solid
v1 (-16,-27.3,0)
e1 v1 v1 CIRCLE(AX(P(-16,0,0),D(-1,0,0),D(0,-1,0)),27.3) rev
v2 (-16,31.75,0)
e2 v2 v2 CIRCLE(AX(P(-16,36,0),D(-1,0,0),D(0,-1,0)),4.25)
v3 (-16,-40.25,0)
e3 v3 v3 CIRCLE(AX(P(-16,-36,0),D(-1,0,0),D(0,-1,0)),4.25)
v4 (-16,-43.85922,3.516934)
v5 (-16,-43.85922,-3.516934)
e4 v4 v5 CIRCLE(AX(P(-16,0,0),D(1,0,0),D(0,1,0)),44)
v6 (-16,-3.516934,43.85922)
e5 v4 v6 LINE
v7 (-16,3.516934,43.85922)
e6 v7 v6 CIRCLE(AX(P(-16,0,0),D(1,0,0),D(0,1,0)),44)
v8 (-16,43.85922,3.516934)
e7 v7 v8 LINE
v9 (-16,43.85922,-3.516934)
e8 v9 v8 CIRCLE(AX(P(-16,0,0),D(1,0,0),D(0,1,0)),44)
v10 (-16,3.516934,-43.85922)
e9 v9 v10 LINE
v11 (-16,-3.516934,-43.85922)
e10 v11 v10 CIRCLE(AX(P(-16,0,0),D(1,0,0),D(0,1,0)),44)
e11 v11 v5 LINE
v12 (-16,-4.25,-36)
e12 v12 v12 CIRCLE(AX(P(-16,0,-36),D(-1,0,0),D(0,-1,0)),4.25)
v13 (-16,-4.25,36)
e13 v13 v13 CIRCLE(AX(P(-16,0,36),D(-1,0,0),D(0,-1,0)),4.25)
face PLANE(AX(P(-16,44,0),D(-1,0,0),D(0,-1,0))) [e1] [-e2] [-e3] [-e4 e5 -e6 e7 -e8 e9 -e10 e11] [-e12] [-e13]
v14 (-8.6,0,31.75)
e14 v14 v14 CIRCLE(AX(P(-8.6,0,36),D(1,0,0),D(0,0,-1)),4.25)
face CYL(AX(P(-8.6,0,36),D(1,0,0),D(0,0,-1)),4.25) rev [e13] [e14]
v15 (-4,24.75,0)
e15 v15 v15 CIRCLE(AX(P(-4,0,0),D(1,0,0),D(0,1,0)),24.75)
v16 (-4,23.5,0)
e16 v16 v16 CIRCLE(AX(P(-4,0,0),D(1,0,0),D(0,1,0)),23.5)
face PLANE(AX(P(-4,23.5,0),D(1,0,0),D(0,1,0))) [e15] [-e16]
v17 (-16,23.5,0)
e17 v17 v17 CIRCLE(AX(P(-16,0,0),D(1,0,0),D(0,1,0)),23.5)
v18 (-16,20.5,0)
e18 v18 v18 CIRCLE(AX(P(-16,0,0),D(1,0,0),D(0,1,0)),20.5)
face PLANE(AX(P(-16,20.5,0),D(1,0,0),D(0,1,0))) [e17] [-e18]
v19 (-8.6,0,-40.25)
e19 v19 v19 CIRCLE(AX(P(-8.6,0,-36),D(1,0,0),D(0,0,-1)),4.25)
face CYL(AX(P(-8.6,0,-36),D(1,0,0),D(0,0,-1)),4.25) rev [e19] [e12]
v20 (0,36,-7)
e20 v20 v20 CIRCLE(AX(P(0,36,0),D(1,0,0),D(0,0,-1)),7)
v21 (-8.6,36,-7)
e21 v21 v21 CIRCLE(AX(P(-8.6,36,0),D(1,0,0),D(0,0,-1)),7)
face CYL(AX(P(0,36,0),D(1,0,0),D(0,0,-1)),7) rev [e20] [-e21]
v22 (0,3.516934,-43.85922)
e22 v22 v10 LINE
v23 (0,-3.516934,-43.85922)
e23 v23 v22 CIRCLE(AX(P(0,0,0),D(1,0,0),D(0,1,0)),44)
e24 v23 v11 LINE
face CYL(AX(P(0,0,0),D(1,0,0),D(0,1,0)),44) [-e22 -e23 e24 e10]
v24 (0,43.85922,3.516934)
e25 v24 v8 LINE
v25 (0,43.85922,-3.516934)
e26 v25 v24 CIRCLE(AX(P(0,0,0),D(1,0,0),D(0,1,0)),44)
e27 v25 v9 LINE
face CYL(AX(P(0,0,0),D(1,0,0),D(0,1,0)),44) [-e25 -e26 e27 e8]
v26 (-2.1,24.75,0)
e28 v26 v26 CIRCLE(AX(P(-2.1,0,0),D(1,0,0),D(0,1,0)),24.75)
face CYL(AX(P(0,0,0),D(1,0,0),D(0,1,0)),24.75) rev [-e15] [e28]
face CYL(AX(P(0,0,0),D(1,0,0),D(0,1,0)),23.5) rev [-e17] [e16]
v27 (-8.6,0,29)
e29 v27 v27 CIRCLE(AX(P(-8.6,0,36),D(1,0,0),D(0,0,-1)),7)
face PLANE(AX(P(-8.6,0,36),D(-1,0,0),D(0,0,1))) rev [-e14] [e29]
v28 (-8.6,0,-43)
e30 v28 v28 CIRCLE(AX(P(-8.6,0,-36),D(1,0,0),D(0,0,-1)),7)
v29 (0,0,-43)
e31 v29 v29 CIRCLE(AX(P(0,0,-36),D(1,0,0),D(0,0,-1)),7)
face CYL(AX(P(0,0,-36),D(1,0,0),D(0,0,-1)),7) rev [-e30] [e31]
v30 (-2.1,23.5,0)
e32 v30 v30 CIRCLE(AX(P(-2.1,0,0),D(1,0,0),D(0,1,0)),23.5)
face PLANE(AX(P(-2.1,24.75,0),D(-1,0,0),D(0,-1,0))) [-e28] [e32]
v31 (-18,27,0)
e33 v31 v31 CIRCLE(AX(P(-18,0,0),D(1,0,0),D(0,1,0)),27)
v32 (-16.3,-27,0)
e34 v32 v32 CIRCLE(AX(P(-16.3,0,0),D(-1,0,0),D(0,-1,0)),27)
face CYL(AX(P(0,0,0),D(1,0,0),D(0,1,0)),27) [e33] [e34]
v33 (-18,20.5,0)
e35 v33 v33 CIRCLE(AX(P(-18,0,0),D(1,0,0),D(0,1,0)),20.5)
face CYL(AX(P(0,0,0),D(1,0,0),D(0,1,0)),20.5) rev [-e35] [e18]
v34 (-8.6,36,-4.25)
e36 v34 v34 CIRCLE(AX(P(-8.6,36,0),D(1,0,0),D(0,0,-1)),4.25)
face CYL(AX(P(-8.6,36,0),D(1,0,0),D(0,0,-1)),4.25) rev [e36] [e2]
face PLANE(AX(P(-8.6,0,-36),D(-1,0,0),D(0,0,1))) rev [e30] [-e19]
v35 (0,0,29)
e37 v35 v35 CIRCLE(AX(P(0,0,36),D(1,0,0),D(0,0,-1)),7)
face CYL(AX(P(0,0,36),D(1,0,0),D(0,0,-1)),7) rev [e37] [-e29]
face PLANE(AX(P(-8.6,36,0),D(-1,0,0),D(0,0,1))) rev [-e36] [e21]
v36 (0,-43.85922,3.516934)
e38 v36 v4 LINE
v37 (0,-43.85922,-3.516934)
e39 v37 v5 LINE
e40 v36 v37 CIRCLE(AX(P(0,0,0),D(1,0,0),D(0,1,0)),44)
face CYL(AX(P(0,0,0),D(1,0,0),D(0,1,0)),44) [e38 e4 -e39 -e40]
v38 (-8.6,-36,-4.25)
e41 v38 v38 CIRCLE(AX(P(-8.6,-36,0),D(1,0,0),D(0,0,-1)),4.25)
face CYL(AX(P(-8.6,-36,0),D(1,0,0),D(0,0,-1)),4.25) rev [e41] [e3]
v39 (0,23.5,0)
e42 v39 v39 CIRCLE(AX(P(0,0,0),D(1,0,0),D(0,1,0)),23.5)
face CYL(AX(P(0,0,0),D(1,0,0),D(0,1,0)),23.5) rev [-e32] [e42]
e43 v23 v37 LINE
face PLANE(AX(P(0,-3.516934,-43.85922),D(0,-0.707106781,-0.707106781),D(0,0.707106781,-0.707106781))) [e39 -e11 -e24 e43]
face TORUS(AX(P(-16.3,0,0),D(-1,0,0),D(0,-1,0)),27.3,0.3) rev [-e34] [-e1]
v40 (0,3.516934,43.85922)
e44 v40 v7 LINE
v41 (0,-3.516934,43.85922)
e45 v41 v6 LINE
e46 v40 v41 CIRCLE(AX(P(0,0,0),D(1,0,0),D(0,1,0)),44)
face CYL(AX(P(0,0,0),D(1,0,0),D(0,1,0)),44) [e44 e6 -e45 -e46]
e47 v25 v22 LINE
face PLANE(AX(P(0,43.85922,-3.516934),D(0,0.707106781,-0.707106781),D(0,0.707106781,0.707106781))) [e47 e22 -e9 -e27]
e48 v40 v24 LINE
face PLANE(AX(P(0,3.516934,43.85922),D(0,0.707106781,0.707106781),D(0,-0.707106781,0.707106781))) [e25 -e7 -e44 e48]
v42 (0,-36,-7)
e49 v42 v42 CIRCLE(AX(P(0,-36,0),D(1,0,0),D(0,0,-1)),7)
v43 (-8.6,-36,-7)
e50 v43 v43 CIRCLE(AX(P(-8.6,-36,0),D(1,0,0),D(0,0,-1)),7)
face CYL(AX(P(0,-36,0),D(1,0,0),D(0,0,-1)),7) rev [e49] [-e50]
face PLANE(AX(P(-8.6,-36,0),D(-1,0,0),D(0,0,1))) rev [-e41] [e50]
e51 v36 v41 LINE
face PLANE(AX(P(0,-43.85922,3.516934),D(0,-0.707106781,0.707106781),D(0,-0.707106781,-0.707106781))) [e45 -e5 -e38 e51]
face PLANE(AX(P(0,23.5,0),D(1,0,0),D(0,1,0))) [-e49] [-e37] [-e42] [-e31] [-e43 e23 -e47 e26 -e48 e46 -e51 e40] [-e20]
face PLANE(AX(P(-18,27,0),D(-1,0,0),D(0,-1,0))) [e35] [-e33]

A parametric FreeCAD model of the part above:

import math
import FreeCAD as App
import Part
import Sketcher


def edges_at(feature, points):
    """Names of the edges that pass closest to the given points."""
    edges = feature.Shape.Edges
    near = lambda p: min(range(len(edges)), key=lambda i: edges[i].distToShape(Part.Vertex(*p))[0])
    return sorted({f"Edge{near(p) + 1}" for p in points})


def add_polygon(sketch, points):
    """Adds a closed chain of lines whose ends are joined by coincident constraints."""
    first, n = sketch.GeometryCount, len(points)
    for a, b in zip(points, points[1:] + points[:1]):
        sketch.addGeometry(Part.LineSegment(App.Vector(*a, 0), App.Vector(*b, 0)), False)
    for i in range(n):
        sketch.addConstraint(Sketcher.Constraint("Coincident", first + i, 2, first + (i + 1) % n, 1))

doc = App.newDocument("Part")
body = doc.addObject("PartDesign::Body", "Body")

# Sketch on XY plane
sketch1 = doc.addObject("Sketcher::SketchObject", "Sketch")
body.addObject(sketch1)
sketch1.AttachmentSupport = (doc.XY_Plane, [""])
sketch1.MapMode = "FlatFace"
add_polygon(sketch1, [(0, 44), (-16, 44), (-16, 27), (-18, 27), (-18, 20.5), (-16, 20.5), (-16, 23.5), (-4, 23.5), (-4, 24.8), (-2.1, 24.8), (-2.1, 23.5), (0, 23.5)])  # lines 0-11
sketch1.addConstraint([
    Sketcher.Constraint("Horizontal", 0),
    Sketcher.Constraint("Vertical", 1),
    Sketcher.Constraint("Horizontal", 2),
    Sketcher.Constraint("Vertical", 3),
    Sketcher.Constraint("Horizontal", 4),
    Sketcher.Constraint("Vertical", 5),
    Sketcher.Constraint("Horizontal", 6),
    Sketcher.Constraint("Vertical", 7),
    Sketcher.Constraint("Horizontal", 8),
    Sketcher.Constraint("Vertical", 9),
    Sketcher.Constraint("Horizontal", 10),
    Sketcher.Constraint("Vertical", 11),
    Sketcher.Constraint("PointOnObject", 10, 2, -2),
    Sketcher.Constraint("Horizontal", 6, 2, 9, 2),
    Sketcher.Constraint("Vertical", 1, 2, 4, 2),
    Sketcher.Constraint("DistanceX", 0, 2, 0, 1, 16.0),
    Sketcher.Constraint("DistanceX", 2, 2, 2, 1, 2.0),
    Sketcher.Constraint("DistanceX", 6, 1, 6, 2, 12.0),
    Sketcher.Constraint("DistanceY", 1, 2, 1, 1, 17.0),
    Sketcher.Constraint("DistanceY", 5, 1, 5, 2, 3.0),
    Sketcher.Constraint("DistanceX", 8, 1, 8, 2, 1.9),
    Sketcher.Constraint("DistanceY", 3, 2, 3, 1, 6.5),
    Sketcher.Constraint("DistanceY", -1, 1, 0, 2, 44.0),
    Sketcher.Constraint("DistanceY", 7, 1, 7, 2, 1.25),
])
revolution = doc.addObject("PartDesign::Revolution", "Revolution")
body.addObject(revolution)
revolution.Profile = sketch1
revolution.ReferenceAxis = (sketch1, ["H_Axis"])
revolution.Angle = 360
doc.recompute()

fillet = doc.addObject("PartDesign::Fillet", "Fillet")
body.addObject(fillet)
fillet.Base = (revolution, edges_at(revolution, [(-16, -27, 0)]))
fillet.Radius = 0.3

# Sketch on YZ plane
sketch2 = doc.addObject("Sketcher::SketchObject", "Sketch001")
body.addObject(sketch2)
sketch2.AttachmentSupport = (doc.YZ_Plane, [""])
sketch2.MapMode = "FlatFace"
sketch2.addGeometry([
    Part.Circle(App.Vector(36, 0, 0), App.Vector(0, 0, 1), 7),
    Part.Circle(App.Vector(0, 36, 0), App.Vector(0, 0, 1), 7),
    Part.Circle(App.Vector(0, -36, 0), App.Vector(0, 0, 1), 7),
    Part.Circle(App.Vector(-36, 0, 0), App.Vector(0, 0, 1), 7),
], False)
sketch2.addConstraint([
    Sketcher.Constraint("Equal", 0, 1),
    Sketcher.Constraint("Equal", 1, 2),
    Sketcher.Constraint("Equal", 2, 3),
    Sketcher.Constraint("Symmetric", 1, 3, 2, 3, -1, 1),
    Sketcher.Constraint("Symmetric", 0, 3, 3, 3, -1, 1),
    Sketcher.Constraint("PointOnObject", 0, 3, -1),
    Sketcher.Constraint("PointOnObject", 1, 3, -2),
    Sketcher.Constraint("Diameter", 0, 14.0),
    Sketcher.Constraint("DistanceX", -1, 1, 0, 3, 36.0),
    Sketcher.Constraint("DistanceY", -1, 1, 1, 3, 36.0),
])
doc.recompute()
hole = doc.addObject("PartDesign::Hole", "Hole")
body.addObject(hole)
hole.Profile = sketch2
hole.ThreadType = "None"
hole.Diameter = 14
hole.DepthType = "Dimension"
hole.Depth = 8.6
hole.DrillPoint = "Flat"

# Sketch on YZ plane
sketch3 = doc.addObject("Sketcher::SketchObject", "Sketch002")
body.addObject(sketch3)
sketch3.AttachmentSupport = (doc.YZ_Plane, [""])
sketch3.MapMode = "FlatFace"
sketch3.AttachmentOffset = App.Placement(App.Vector(0, 0, -8.6), App.Rotation())
sketch3.addGeometry([
    Part.Circle(App.Vector(36, 0, 0), App.Vector(0, 0, 1), 4.2),
    Part.Circle(App.Vector(0, 36, 0), App.Vector(0, 0, 1), 4.2),
    Part.Circle(App.Vector(-36, 0, 0), App.Vector(0, 0, 1), 4.2),
    Part.Circle(App.Vector(0, -36, 0), App.Vector(0, 0, 1), 4.2),
], False)
sketch3.addConstraint([
    Sketcher.Constraint("Equal", 0, 1),
    Sketcher.Constraint("Equal", 1, 2),
    Sketcher.Constraint("Equal", 2, 3),
    Sketcher.Constraint("Symmetric", 0, 3, 2, 3, -1, 1),
    Sketcher.Constraint("Symmetric", 1, 3, 3, 3, -1, 1),
    Sketcher.Constraint("PointOnObject", 0, 3, -1),
    Sketcher.Constraint("PointOnObject", 1, 3, -2),
    Sketcher.Constraint("Diameter", 0, 8.5),
    Sketcher.Constraint("DistanceX", -1, 1, 0, 3, 36.0),
    Sketcher.Constraint("DistanceY", -1, 1, 1, 3, 36.0),
])
doc.recompute()
hole2 = doc.addObject("PartDesign::Hole", "Hole001")
body.addObject(hole2)
hole2.Profile = sketch3
hole2.ThreadType = "None"
hole2.Diameter = 8.5
hole2.DepthType = "ThroughAll"

# Sketch on YZ plane
sketch4 = doc.addObject("Sketcher::SketchObject", "Sketch003")
body.addObject(sketch4)
sketch4.AttachmentSupport = (doc.YZ_Plane, [""])
sketch4.MapMode = "FlatFace"
sketch4.AttachmentOffset = App.Placement(App.Vector(0, 0, -16), App.Rotation())
sketch4.addGeometry([
    Part.LineSegment(App.Vector(4, 44, 0), App.Vector(44, 4, 0)),  # 0
    Part.ArcOfCircle(Part.Circle(App.Vector(0, 0, 0), App.Vector(0, 0, 1), 44), math.radians(5), math.radians(85)),  # 1
    Part.LineSegment(App.Vector(44, -4, 0), App.Vector(4, -44, 0)),  # 2
    Part.ArcOfCircle(Part.Circle(App.Vector(0, 0, 0), App.Vector(0, 0, 1), 44), math.radians(-85), math.radians(-5)),  # 3
    Part.LineSegment(App.Vector(-4, -44, 0), App.Vector(-44, -4, 0)),  # 4
    Part.ArcOfCircle(Part.Circle(App.Vector(0, 0, 0), App.Vector(0, 0, 1), 44), math.radians(-175), math.radians(-95)),  # 5
    Part.LineSegment(App.Vector(-44, 4, 0), App.Vector(-4, 44, 0)),  # 6
    Part.ArcOfCircle(Part.Circle(App.Vector(0, 0, 0), App.Vector(0, 0, 1), 44), math.radians(95), math.radians(175)),  # 7
], False)
sketch4.addConstraint([
    Sketcher.Constraint("Coincident", 0, 1, 1, 2),
    Sketcher.Constraint("Coincident", 1, 1, 0, 2),
    Sketcher.Constraint("Coincident", 2, 1, 3, 2),
    Sketcher.Constraint("Coincident", 3, 1, 2, 2),
    Sketcher.Constraint("Coincident", 4, 1, 5, 2),
    Sketcher.Constraint("Coincident", 5, 1, 4, 2),
    Sketcher.Constraint("Coincident", 6, 1, 7, 2),
    Sketcher.Constraint("Coincident", 7, 1, 6, 2),
    Sketcher.Constraint("Coincident", 1, 3, -1, 1),
    Sketcher.Constraint("Coincident", 3, 3, -1, 1),
    Sketcher.Constraint("Coincident", 5, 3, -1, 1),
    Sketcher.Constraint("Coincident", 7, 3, -1, 1),
    Sketcher.Constraint("Equal", 1, 3),
    Sketcher.Constraint("Equal", 3, 5),
    Sketcher.Constraint("Equal", 5, 7),
    Sketcher.Constraint("Perpendicular", 0, 2),
    Sketcher.Constraint("Perpendicular", 2, 4),
    Sketcher.Constraint("Perpendicular", 4, 6),
    Sketcher.Constraint("Horizontal", 3, 1, 4, 1),
    Sketcher.Constraint("Horizontal", 2, 1, 5, 1),
    Sketcher.Constraint("Horizontal", 1, 1, 6, 1),
    Sketcher.Constraint("Vertical", 1, 1, 2, 1),
    Sketcher.Constraint("Radius", 1, 44.0),
    Sketcher.Constraint("DistanceY", -1, 1, 0, 1, 43.85922),
])
pocket1 = doc.addObject("PartDesign::Pocket", "Pocket")
body.addObject(pocket1)
pocket1.Profile = sketch4
pocket1.Type = "ThroughAll"
pocket1.Reversed = True

doc.recompute()
